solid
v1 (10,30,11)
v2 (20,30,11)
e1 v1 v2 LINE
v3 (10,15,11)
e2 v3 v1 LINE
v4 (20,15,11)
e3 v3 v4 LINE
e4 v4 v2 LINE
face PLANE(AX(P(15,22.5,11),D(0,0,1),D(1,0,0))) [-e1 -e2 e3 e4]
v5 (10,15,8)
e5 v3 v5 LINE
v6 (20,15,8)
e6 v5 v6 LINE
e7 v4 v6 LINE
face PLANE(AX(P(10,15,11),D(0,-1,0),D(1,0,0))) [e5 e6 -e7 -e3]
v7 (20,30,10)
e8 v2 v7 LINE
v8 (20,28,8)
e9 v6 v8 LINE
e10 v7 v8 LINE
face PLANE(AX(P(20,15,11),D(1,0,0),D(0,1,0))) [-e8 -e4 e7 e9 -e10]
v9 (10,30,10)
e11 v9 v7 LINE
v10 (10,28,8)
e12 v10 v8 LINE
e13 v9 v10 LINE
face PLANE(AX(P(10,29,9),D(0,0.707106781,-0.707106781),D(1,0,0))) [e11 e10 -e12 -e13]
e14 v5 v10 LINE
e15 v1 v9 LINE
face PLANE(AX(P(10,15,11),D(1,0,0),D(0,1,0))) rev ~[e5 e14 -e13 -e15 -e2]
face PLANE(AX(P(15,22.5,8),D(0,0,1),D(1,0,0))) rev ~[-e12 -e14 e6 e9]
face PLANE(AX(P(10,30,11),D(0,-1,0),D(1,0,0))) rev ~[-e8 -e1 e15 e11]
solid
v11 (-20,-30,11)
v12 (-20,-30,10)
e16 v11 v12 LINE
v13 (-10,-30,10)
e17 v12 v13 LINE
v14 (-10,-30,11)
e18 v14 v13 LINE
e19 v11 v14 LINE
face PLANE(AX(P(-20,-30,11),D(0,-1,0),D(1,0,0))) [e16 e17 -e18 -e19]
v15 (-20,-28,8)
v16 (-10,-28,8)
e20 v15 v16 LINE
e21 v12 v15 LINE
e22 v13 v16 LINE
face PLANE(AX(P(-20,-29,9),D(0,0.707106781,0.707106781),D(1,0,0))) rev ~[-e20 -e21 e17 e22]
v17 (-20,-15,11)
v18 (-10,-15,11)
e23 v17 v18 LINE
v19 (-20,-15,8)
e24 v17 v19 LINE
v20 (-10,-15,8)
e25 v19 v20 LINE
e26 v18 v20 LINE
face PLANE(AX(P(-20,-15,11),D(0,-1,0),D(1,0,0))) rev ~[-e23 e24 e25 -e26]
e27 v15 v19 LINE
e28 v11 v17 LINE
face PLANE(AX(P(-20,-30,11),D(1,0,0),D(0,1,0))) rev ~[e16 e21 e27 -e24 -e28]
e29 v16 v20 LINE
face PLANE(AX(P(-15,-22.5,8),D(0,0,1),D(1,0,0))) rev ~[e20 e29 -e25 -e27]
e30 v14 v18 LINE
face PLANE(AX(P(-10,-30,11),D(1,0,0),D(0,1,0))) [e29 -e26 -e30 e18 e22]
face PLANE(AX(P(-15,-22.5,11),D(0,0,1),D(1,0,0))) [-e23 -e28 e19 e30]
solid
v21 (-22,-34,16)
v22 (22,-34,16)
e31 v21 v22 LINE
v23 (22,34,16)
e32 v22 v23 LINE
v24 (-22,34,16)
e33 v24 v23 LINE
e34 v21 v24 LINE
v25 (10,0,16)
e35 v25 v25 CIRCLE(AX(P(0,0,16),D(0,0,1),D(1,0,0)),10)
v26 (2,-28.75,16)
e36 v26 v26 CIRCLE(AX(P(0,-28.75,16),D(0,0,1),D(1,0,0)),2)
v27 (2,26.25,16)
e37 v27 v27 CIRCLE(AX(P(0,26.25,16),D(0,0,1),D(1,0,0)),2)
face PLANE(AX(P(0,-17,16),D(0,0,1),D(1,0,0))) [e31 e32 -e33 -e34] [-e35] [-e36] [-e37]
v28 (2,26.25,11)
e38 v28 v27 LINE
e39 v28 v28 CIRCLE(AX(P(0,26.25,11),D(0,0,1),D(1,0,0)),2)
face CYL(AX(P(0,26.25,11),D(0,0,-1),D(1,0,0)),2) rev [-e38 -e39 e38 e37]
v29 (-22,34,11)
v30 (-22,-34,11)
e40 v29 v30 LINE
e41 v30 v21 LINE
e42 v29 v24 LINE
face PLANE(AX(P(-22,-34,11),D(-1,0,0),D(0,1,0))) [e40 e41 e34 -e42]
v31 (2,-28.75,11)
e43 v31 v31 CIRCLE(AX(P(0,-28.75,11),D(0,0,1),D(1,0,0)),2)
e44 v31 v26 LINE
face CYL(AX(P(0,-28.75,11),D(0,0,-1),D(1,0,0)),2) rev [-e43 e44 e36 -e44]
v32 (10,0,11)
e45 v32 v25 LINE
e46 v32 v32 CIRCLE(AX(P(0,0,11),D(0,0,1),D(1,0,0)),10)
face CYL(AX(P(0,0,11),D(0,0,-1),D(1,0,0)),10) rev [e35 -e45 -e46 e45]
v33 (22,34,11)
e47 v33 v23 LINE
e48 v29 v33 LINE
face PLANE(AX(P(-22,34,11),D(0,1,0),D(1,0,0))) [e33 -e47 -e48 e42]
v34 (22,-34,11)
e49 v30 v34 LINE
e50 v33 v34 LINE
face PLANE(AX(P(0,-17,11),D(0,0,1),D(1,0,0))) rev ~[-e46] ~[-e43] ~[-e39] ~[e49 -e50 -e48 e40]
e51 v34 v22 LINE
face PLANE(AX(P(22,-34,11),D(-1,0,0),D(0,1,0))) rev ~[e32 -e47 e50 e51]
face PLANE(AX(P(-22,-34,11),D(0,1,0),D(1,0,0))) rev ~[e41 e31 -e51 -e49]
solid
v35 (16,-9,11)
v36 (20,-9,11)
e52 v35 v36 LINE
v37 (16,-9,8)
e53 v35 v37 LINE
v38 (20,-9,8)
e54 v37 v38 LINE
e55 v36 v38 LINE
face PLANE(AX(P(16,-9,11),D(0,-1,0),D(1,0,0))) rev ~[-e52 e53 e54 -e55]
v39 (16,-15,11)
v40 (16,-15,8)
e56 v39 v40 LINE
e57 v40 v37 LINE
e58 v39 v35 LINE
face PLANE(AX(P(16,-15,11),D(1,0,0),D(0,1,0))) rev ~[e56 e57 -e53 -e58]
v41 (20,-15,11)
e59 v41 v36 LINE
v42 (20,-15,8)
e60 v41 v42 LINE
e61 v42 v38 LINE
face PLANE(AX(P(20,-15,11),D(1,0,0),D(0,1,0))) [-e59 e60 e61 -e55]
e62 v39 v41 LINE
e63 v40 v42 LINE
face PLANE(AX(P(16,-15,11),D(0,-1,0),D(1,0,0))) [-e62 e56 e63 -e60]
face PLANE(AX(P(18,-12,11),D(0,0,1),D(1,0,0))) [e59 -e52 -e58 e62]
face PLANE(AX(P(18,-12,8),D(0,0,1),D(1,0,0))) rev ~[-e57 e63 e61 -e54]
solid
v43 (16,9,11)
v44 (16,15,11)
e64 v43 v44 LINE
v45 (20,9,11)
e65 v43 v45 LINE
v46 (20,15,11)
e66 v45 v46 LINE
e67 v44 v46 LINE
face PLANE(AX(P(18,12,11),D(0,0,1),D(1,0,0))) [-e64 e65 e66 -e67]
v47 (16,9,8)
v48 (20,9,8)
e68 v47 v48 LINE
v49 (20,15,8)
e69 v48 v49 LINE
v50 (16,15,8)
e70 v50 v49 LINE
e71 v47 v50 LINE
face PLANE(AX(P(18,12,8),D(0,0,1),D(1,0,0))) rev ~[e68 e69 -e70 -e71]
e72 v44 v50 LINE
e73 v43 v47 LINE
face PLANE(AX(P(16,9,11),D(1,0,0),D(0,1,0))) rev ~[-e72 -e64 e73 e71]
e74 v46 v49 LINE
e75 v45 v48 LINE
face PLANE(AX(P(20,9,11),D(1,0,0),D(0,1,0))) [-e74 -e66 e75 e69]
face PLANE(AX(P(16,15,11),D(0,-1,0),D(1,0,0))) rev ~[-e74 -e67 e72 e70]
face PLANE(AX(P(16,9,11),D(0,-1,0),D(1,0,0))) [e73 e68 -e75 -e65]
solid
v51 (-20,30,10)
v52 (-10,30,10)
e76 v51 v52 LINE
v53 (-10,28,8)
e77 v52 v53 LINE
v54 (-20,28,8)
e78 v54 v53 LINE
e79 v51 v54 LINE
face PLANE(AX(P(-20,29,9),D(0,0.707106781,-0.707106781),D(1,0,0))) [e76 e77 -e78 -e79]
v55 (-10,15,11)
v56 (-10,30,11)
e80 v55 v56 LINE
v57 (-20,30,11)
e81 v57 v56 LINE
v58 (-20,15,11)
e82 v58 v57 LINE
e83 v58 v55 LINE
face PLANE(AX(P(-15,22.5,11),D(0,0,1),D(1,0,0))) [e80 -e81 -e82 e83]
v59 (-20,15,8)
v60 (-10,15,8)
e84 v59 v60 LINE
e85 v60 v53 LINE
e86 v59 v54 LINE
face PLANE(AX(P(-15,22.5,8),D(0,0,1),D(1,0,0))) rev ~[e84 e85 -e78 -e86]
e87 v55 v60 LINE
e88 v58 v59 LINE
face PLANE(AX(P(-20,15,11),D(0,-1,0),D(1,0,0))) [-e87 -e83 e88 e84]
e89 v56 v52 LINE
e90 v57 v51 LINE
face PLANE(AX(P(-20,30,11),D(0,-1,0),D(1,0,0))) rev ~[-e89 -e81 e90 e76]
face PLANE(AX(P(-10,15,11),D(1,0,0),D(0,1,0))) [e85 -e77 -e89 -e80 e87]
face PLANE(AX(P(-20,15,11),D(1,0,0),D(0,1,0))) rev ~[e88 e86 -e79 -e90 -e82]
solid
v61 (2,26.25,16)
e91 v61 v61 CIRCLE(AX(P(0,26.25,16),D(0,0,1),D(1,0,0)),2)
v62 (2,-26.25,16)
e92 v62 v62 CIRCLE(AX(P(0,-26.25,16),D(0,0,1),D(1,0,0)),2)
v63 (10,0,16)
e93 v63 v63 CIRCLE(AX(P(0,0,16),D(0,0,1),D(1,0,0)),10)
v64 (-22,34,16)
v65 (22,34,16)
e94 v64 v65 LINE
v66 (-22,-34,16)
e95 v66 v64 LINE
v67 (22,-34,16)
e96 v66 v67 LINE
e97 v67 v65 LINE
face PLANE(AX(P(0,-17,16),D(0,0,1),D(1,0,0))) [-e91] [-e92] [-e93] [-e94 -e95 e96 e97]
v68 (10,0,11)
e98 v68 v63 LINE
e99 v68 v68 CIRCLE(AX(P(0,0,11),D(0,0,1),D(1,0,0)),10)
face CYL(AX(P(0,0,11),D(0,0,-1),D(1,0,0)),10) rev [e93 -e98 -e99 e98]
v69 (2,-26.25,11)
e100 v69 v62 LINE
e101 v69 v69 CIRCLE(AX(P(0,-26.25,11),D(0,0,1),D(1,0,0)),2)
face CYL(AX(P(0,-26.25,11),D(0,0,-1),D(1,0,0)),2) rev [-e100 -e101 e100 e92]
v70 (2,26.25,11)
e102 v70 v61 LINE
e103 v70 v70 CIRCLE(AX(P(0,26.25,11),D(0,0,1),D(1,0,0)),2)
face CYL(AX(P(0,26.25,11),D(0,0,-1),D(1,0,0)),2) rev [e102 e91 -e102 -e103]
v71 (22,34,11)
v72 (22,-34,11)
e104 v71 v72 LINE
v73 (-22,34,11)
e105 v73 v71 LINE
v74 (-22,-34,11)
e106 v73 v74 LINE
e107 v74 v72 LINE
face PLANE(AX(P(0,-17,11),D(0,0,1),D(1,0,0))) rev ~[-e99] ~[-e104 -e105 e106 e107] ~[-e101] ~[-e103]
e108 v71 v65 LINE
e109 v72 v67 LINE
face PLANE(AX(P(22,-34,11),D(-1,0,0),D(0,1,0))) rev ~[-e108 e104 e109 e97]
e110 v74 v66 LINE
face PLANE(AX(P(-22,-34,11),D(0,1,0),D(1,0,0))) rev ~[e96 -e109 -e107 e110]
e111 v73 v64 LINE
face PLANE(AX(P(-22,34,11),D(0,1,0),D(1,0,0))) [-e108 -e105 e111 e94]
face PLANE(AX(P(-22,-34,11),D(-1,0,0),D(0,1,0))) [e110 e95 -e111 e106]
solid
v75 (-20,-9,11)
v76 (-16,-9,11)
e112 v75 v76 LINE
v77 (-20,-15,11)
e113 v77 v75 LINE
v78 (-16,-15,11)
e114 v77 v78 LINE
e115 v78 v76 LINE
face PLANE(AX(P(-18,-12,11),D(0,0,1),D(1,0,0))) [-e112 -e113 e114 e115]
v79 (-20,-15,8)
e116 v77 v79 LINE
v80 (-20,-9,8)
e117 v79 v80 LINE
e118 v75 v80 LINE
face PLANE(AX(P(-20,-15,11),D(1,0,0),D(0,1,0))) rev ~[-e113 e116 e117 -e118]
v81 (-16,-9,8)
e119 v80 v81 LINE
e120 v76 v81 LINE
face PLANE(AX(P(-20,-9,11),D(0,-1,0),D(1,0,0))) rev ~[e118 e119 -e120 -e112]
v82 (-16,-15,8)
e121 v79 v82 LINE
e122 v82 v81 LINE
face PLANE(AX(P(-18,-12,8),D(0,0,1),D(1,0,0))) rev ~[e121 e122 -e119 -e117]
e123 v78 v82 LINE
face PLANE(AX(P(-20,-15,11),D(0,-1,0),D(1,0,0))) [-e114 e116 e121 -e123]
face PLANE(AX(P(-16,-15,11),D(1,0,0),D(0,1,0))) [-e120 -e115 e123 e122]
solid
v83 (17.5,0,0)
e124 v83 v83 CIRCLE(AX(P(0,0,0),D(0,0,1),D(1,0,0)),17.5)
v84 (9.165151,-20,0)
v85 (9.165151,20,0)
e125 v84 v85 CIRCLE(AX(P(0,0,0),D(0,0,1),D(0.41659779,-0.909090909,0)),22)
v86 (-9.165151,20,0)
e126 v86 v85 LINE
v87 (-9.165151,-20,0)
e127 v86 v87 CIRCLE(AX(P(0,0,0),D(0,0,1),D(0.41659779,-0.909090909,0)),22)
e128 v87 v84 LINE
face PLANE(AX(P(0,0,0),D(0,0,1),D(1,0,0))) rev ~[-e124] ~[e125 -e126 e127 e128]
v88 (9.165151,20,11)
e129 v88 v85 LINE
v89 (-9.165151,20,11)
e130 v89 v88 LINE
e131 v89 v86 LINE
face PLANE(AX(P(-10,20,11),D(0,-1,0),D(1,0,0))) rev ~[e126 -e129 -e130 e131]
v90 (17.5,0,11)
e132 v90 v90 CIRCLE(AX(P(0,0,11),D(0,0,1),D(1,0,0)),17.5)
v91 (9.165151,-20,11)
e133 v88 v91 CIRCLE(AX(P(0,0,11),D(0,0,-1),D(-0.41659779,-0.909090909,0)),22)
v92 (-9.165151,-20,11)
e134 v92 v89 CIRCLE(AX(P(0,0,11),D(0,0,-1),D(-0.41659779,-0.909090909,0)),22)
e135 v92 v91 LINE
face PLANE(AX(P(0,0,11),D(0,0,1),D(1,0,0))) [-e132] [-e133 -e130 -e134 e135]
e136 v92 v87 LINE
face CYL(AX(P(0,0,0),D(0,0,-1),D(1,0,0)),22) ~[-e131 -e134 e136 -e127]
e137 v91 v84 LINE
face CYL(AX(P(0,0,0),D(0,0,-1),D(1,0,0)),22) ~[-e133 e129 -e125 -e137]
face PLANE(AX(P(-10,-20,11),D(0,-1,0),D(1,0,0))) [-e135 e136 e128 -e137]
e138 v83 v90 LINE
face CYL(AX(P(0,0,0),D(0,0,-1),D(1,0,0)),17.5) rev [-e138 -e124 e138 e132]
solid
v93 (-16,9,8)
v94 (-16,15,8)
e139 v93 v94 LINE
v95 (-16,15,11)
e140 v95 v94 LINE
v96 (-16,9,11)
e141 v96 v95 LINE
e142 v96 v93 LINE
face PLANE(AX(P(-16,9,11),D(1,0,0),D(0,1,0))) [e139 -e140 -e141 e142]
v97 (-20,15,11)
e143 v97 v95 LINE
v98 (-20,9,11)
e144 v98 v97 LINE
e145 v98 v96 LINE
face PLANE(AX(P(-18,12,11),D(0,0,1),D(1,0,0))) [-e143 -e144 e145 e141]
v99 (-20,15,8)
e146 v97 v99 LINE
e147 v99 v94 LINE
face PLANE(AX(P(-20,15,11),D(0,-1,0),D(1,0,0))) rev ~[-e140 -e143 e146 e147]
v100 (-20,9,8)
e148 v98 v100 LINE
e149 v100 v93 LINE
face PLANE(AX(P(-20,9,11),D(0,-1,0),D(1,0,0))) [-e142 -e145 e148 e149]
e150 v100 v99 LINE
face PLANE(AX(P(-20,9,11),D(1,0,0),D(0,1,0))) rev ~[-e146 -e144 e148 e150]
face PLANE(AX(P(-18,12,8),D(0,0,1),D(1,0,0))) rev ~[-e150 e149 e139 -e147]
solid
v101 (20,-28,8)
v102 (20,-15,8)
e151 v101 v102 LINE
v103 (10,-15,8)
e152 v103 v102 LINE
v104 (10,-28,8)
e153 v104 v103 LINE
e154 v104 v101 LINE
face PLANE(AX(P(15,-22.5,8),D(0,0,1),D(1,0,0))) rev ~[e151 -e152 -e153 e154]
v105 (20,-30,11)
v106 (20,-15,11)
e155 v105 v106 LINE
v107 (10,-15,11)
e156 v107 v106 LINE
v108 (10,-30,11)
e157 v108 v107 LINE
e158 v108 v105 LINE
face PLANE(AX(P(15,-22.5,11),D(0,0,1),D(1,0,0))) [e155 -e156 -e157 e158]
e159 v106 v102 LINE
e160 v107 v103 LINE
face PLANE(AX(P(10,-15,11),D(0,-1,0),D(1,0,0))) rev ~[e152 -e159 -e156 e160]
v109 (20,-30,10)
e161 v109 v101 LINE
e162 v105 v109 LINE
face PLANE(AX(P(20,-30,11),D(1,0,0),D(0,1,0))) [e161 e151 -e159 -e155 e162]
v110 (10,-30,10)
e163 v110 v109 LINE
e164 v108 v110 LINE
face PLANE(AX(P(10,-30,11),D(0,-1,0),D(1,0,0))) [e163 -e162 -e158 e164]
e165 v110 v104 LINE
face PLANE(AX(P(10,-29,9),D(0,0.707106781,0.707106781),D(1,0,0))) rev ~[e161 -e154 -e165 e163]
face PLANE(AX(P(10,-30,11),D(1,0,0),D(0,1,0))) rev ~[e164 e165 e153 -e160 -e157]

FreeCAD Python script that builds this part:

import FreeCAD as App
import Part
import Sketcher
from FreeCAD import Vector


def edges_at(feature, points):
    """Names of the edges that pass closest to the given points."""
    edges = feature.Shape.Edges
    near = lambda p: min(range(len(edges)), key=lambda i: edges[i].distToShape(Part.Vertex(*p))[0])
    return sorted({f"Edge{near(p) + 1}" for p in points})

doc = App.newDocument("Part")
params = doc.addObject("Spreadsheet::Sheet", "Params")
for row, (alias, value) in enumerate([
    ("sketch1_width", "20 mm"),
    ("sketch1_height", "6.25 mm"),
    ("pad1_length", "11 mm"),
    ("sketch2_width", "20 mm"),
    ("sketch2_height", "6.25 mm"),
    ("pad2_length", "11 mm"),
    ("sketch3_diameter", "35 mm"),
    ("pad3_length", "11 mm"),
    ("sketch4_diameter", "44 mm"),
    ("pad4_length", "11 mm"),
    ("sketch5_width", "4 mm"),
    ("sketch5_height", "6 mm"),
    ("pad5_length", "3 mm"),
    ("sketch6_width", "4 mm"),
    ("sketch6_height", "6 mm"),
    ("pad6_length", "3 mm"),
    ("sketch7_width", "4 mm"),
    ("sketch7_height", "6 mm"),
    ("pad7_length", "3 mm"),
    ("sketch8_width", "4 mm"),
    ("sketch8_height", "6 mm"),
    ("pad8_length", "3 mm"),
    ("sketch9_width", "10 mm"),
    ("sketch9_height", "15 mm"),
    ("pad9_length", "3 mm"),
    ("chamfer_size", "2 mm"),
    ("sketch10_width", "10 mm"),
    ("sketch10_height", "15 mm"),
    ("pad10_length", "3 mm"),
    ("chamfer2_size", "2 mm"),
    ("sketch11_width", "10 mm"),
    ("sketch11_height", "15 mm"),
    ("pad11_length", "3 mm"),
    ("chamfer3_size", "2 mm"),
    ("sketch12_width", "10 mm"),
    ("sketch12_height", "15 mm"),
    ("pad12_length", "3 mm"),
    ("chamfer4_size", "2 mm"),
    ("sketch13_diameter", "4 mm"),
    ("pad13_length", "5 mm"),
    ("sketch14_diameter", "4 mm"),
    ("pad14_length", "5 mm"),
    ("sketch15_diameter", "20 mm"),
    ("pad15_length", "5 mm"),
    ("sketch16_width", "44 mm"),
    ("sketch16_height", "34 mm"),
    ("pad16_length", "5 mm"),
    ("sketch17_width", "44 mm"),
    ("sketch17_height", "34 mm"),
    ("pad17_length", "5 mm"),
    ("sketch18_diameter", "4 mm"),
    ("pad18_length", "5 mm"),
    ("sketch19_diameter", "4 mm"),
    ("pad19_length", "5 mm"),
    ("sketch20_diameter", "20 mm"),
    ("pad20_length", "5 mm"),
    ("sketch21_width", "44 mm"),
    ("sketch21_height", "34 mm"),
    ("pad21_length", "5 mm"),
    ("sketch22_width", "44 mm"),
    ("sketch22_height", "34 mm"),
    ("pad22_length", "5 mm"),
], start=1):
    params.set(f"A{row}", alias)
    params.set(f"B{row}", "=" + value)
    params.setAlias(f"B{row}", alias)

body = doc.addObject("PartDesign::Body", "Body")

# Sketch on XY plane
sketch1 = body.newObject("Sketcher::SketchObject", "Sketch")
sketch1.AttachmentSupport = (doc.getObject("XY_Plane"), [""])
sketch1.MapMode = "FlatFace"
sketch1.AttachmentOffset = App.Placement(Vector(0, 0, 11), App.Rotation())
sketch1.addGeometry([
    Part.LineSegment(Vector(-10, 26, 0), Vector(-10, 20, 0)),
    Part.LineSegment(Vector(-10, 20, 0), Vector(10, 20, 0)),
    Part.LineSegment(Vector(10, 20, 0), Vector(10, 26, 0)),
    Part.LineSegment(Vector(10, 26, 0), Vector(-10, 26, 0)),
], False)
sketch1.addConstraint([
    Sketcher.Constraint("Coincident", 0, 2, 1, 1),
    Sketcher.Constraint("Coincident", 1, 2, 2, 1),
    Sketcher.Constraint("Coincident", 2, 2, 3, 1),
    Sketcher.Constraint("Coincident", 3, 2, 0, 1),
    Sketcher.Constraint("Vertical", 0),
    Sketcher.Constraint("Horizontal", 1),
    Sketcher.Constraint("Vertical", 2),
    Sketcher.Constraint("Horizontal", 3),
    Sketcher.Constraint("DistanceX", 1, 1, 1, 2, 20.0),
    Sketcher.Constraint("DistanceX", 0, 2, -1, 1, 10.0),
    Sketcher.Constraint("DistanceY", -1, 1, 0, 2, 20.0),
    Sketcher.Constraint("DistanceY", 0, 2, 0, 1, 6.25),
])
sketch1.setExpression("Constraints[8]", "Params.sketch1_width")
sketch1.setExpression("Constraints[11]", "Params.sketch1_height")
pad1 = body.newObject("PartDesign::Pad", "Pad")
pad1.Profile = sketch1
pad1.setExpression("Length", "Params.pad1_length")
pad1.Reversed = True
body2 = doc.addObject("PartDesign::Body", "Body001")

# Sketch on XY plane
sketch2 = body2.newObject("Sketcher::SketchObject", "Sketch001")
sketch2.AttachmentSupport = (doc.getObject("XY_Plane001"), [""])
sketch2.MapMode = "FlatFace"
sketch2.AttachmentOffset = App.Placement(Vector(0, 0, 11), App.Rotation())
sketch2.addGeometry([
    Part.LineSegment(Vector(-10, -20, 0), Vector(-10, -26, 0)),
    Part.LineSegment(Vector(-10, -26, 0), Vector(10, -26, 0)),
    Part.LineSegment(Vector(10, -26, 0), Vector(10, -20, 0)),
    Part.LineSegment(Vector(10, -20, 0), Vector(-10, -20, 0)),
], False)
sketch2.addConstraint([
    Sketcher.Constraint("Coincident", 0, 2, 1, 1),
    Sketcher.Constraint("Coincident", 1, 2, 2, 1),
    Sketcher.Constraint("Coincident", 2, 2, 3, 1),
    Sketcher.Constraint("Coincident", 3, 2, 0, 1),
    Sketcher.Constraint("Vertical", 0),
    Sketcher.Constraint("Horizontal", 1),
    Sketcher.Constraint("Vertical", 2),
    Sketcher.Constraint("Horizontal", 3),
    Sketcher.Constraint("DistanceX", 1, 1, 1, 2, 20.0),
    Sketcher.Constraint("DistanceX", 0, 2, -1, 1, 10.0),
    Sketcher.Constraint("DistanceY", 2, 2, -1, 1, 20.0),
    Sketcher.Constraint("DistanceY", 0, 2, 0, 1, 6.25),
])
sketch2.setExpression("Constraints[8]", "Params.sketch2_width")
sketch2.setExpression("Constraints[11]", "Params.sketch2_height")
pad2 = body2.newObject("PartDesign::Pad", "Pad001")
pad2.Profile = sketch2
pad2.setExpression("Length", "Params.pad2_length")
pad2.Reversed = True
body3 = doc.addObject("PartDesign::Body", "Body002")

# Sketch on XY plane
sketch3 = body3.newObject("Sketcher::SketchObject", "Sketch002")
sketch3.AttachmentSupport = (doc.getObject("XY_Plane002"), [""])
sketch3.MapMode = "FlatFace"
sketch3.addGeometry(Part.Circle(Vector(0, 0, 0), Vector(0, 0, 1), 18), False)
sketch3.addConstraint([
    Sketcher.Constraint("Coincident", 0, 3, -1, 1),
    Sketcher.Constraint("Diameter", 0, 35.0),
])
sketch3.setExpression("Constraints[1]", "Params.sketch3_diameter")
pad3 = body3.newObject("PartDesign::Pad", "Pad002")
pad3.Profile = sketch3
pad3.setExpression("Length", "Params.pad3_length")
body4 = doc.addObject("PartDesign::Body", "Body003")

# Sketch on XY plane
sketch4 = body4.newObject("Sketcher::SketchObject", "Sketch003")
sketch4.AttachmentSupport = (doc.getObject("XY_Plane003"), [""])
sketch4.MapMode = "FlatFace"
sketch4.addGeometry(Part.Circle(Vector(0, 0, 0), Vector(0, 0, 1), 22), False)
sketch4.addConstraint([
    Sketcher.Constraint("Coincident", 0, 3, -1, 1),
    Sketcher.Constraint("Diameter", 0, 44.0),
])
sketch4.setExpression("Constraints[1]", "Params.sketch4_diameter")
pad4 = body4.newObject("PartDesign::Pad", "Pad003")
pad4.Profile = sketch4
pad4.setExpression("Length", "Params.pad4_length")
doc.recompute()

boolean = body4.newObject("PartDesign::Boolean", "Boolean")
boolean.Type = "Cut"
boolean.addObjects([body3])
doc.recompute()

boolean2 = body4.newObject("PartDesign::Boolean", "Boolean001")
boolean2.Type = "Cut"
boolean2.addObjects([body2])
doc.recompute()

boolean3 = body4.newObject("PartDesign::Boolean", "Boolean002")
boolean3.Type = "Cut"
boolean3.addObjects([body])
body5 = doc.addObject("PartDesign::Body", "Body004")

# Sketch on XY plane
sketch5 = body5.newObject("Sketcher::SketchObject", "Sketch004")
sketch5.AttachmentSupport = (doc.getObject("XY_Plane004"), [""])
sketch5.MapMode = "FlatFace"
sketch5.AttachmentOffset = App.Placement(Vector(0, 0, 11), App.Rotation())
sketch5.addGeometry([
    Part.LineSegment(Vector(16, -9, 0), Vector(16, -15, 0)),
    Part.LineSegment(Vector(16, -15, 0), Vector(20, -15, 0)),
    Part.LineSegment(Vector(20, -15, 0), Vector(20, -9, 0)),
    Part.LineSegment(Vector(20, -9, 0), Vector(16, -9, 0)),
], False)
sketch5.addConstraint([
    Sketcher.Constraint("Coincident", 0, 2, 1, 1),
    Sketcher.Constraint("Coincident", 1, 2, 2, 1),
    Sketcher.Constraint("Coincident", 2, 2, 3, 1),
    Sketcher.Constraint("Coincident", 3, 2, 0, 1),
    Sketcher.Constraint("Vertical", 0),
    Sketcher.Constraint("Horizontal", 1),
    Sketcher.Constraint("Vertical", 2),
    Sketcher.Constraint("Horizontal", 3),
    Sketcher.Constraint("DistanceX", 1, 1, 1, 2, 4.0),
    Sketcher.Constraint("DistanceY", 0, 2, 0, 1, 6.0),
    Sketcher.Constraint("DistanceX", -1, 1, 0, 2, 16.0),
    Sketcher.Constraint("DistanceY", 0, 2, -1, 1, 15.0),
])
sketch5.setExpression("Constraints[8]", "Params.sketch5_width")
sketch5.setExpression("Constraints[9]", "Params.sketch5_height")
pad5 = body5.newObject("PartDesign::Pad", "Pad004")
pad5.Profile = sketch5
pad5.setExpression("Length", "Params.pad5_length")
pad5.Reversed = True
body6 = doc.addObject("PartDesign::Body", "Body005")

# Sketch on XY plane
sketch6 = body6.newObject("Sketcher::SketchObject", "Sketch005")
sketch6.AttachmentSupport = (doc.getObject("XY_Plane005"), [""])
sketch6.MapMode = "FlatFace"
sketch6.AttachmentOffset = App.Placement(Vector(0, 0, 11), App.Rotation())
sketch6.addGeometry([
    Part.LineSegment(Vector(16, 15, 0), Vector(16, 9, 0)),
    Part.LineSegment(Vector(16, 9, 0), Vector(20, 9, 0)),
    Part.LineSegment(Vector(20, 9, 0), Vector(20, 15, 0)),
    Part.LineSegment(Vector(20, 15, 0), Vector(16, 15, 0)),
], False)
sketch6.addConstraint([
    Sketcher.Constraint("Coincident", 0, 2, 1, 1),
    Sketcher.Constraint("Coincident", 1, 2, 2, 1),
    Sketcher.Constraint("Coincident", 2, 2, 3, 1),
    Sketcher.Constraint("Coincident", 3, 2, 0, 1),
    Sketcher.Constraint("Vertical", 0),
    Sketcher.Constraint("Horizontal", 1),
    Sketcher.Constraint("Vertical", 2),
    Sketcher.Constraint("Horizontal", 3),
    Sketcher.Constraint("DistanceX", 1, 1, 1, 2, 4.0),
    Sketcher.Constraint("DistanceY", 0, 2, 0, 1, 6.0),
    Sketcher.Constraint("DistanceX", -1, 1, 0, 2, 16.0),
    Sketcher.Constraint("DistanceY", -1, 1, 0, 2, 9.0),
])
sketch6.setExpression("Constraints[8]", "Params.sketch6_width")
sketch6.setExpression("Constraints[9]", "Params.sketch6_height")
pad6 = body6.newObject("PartDesign::Pad", "Pad005")
pad6.Profile = sketch6
pad6.setExpression("Length", "Params.pad6_length")
pad6.Reversed = True
body7 = doc.addObject("PartDesign::Body", "Body006")

# Sketch on XY plane
sketch7 = body7.newObject("Sketcher::SketchObject", "Sketch006")
sketch7.AttachmentSupport = (doc.getObject("XY_Plane006"), [""])
sketch7.MapMode = "FlatFace"
sketch7.AttachmentOffset = App.Placement(Vector(0, 0, 11), App.Rotation())
sketch7.addGeometry([
    Part.LineSegment(Vector(-20, 15, 0), Vector(-20, 9, 0)),
    Part.LineSegment(Vector(-20, 9, 0), Vector(-16, 9, 0)),
    Part.LineSegment(Vector(-16, 9, 0), Vector(-16, 15, 0)),
    Part.LineSegment(Vector(-16, 15, 0), Vector(-20, 15, 0)),
], False)
sketch7.addConstraint([
    Sketcher.Constraint("Coincident", 0, 2, 1, 1),
    Sketcher.Constraint("Coincident", 1, 2, 2, 1),
    Sketcher.Constraint("Coincident", 2, 2, 3, 1),
    Sketcher.Constraint("Coincident", 3, 2, 0, 1),
    Sketcher.Constraint("Vertical", 0),
    Sketcher.Constraint("Horizontal", 1),
    Sketcher.Constraint("Vertical", 2),
    Sketcher.Constraint("Horizontal", 3),
    Sketcher.Constraint("DistanceX", 1, 1, 1, 2, 4.0),
    Sketcher.Constraint("DistanceY", 0, 2, 0, 1, 6.0),
    Sketcher.Constraint("DistanceX", 0, 2, -1, 1, 20.0),
    Sketcher.Constraint("DistanceY", -1, 1, 0, 2, 9.0),
])
sketch7.setExpression("Constraints[8]", "Params.sketch7_width")
sketch7.setExpression("Constraints[9]", "Params.sketch7_height")
pad7 = body7.newObject("PartDesign::Pad", "Pad006")
pad7.Profile = sketch7
pad7.setExpression("Length", "Params.pad7_length")
pad7.Reversed = True
body8 = doc.addObject("PartDesign::Body", "Body007")

# Sketch on XY plane
sketch8 = body8.newObject("Sketcher::SketchObject", "Sketch007")
sketch8.AttachmentSupport = (doc.getObject("XY_Plane007"), [""])
sketch8.MapMode = "FlatFace"
sketch8.AttachmentOffset = App.Placement(Vector(0, 0, 11), App.Rotation())
sketch8.addGeometry([
    Part.LineSegment(Vector(-20, -9, 0), Vector(-20, -15, 0)),
    Part.LineSegment(Vector(-20, -15, 0), Vector(-16, -15, 0)),
    Part.LineSegment(Vector(-16, -15, 0), Vector(-16, -9, 0)),
    Part.LineSegment(Vector(-16, -9, 0), Vector(-20, -9, 0)),
], False)
sketch8.addConstraint([
    Sketcher.Constraint("Coincident", 0, 2, 1, 1),
    Sketcher.Constraint("Coincident", 1, 2, 2, 1),
    Sketcher.Constraint("Coincident", 2, 2, 3, 1),
    Sketcher.Constraint("Coincident", 3, 2, 0, 1),
    Sketcher.Constraint("Vertical", 0),
    Sketcher.Constraint("Horizontal", 1),
    Sketcher.Constraint("Vertical", 2),
    Sketcher.Constraint("Horizontal", 3),
    Sketcher.Constraint("DistanceX", 1, 1, 1, 2, 4.0),
    Sketcher.Constraint("DistanceY", 0, 2, 0, 1, 6.0),
    Sketcher.Constraint("DistanceX", 0, 2, -1, 1, 20.0),
    Sketcher.Constraint("DistanceY", 0, 2, -1, 1, 15.0),
])
sketch8.setExpression("Constraints[8]", "Params.sketch8_width")
sketch8.setExpression("Constraints[9]", "Params.sketch8_height")
pad8 = body8.newObject("PartDesign::Pad", "Pad007")
pad8.Profile = sketch8
pad8.setExpression("Length", "Params.pad8_length")
pad8.Reversed = True
body9 = doc.addObject("PartDesign::Body", "Body008")

# Sketch on XY plane
sketch9 = body9.newObject("Sketcher::SketchObject", "Sketch008")
sketch9.AttachmentSupport = (doc.getObject("XY_Plane008"), [""])
sketch9.MapMode = "FlatFace"
sketch9.AttachmentOffset = App.Placement(Vector(0, 0, 11), App.Rotation())
sketch9.addGeometry([
    Part.LineSegment(Vector(10, 30, 0), Vector(10, 15, 0)),
    Part.LineSegment(Vector(10, 15, 0), Vector(20, 15, 0)),
    Part.LineSegment(Vector(20, 15, 0), Vector(20, 30, 0)),
    Part.LineSegment(Vector(20, 30, 0), Vector(10, 30, 0)),
], False)
sketch9.addConstraint([
    Sketcher.Constraint("Coincident", 0, 2, 1, 1),
    Sketcher.Constraint("Coincident", 1, 2, 2, 1),
    Sketcher.Constraint("Coincident", 2, 2, 3, 1),
    Sketcher.Constraint("Coincident", 3, 2, 0, 1),
    Sketcher.Constraint("Vertical", 0),
    Sketcher.Constraint("Horizontal", 1),
    Sketcher.Constraint("Vertical", 2),
    Sketcher.Constraint("Horizontal", 3),
    Sketcher.Constraint("DistanceX", 1, 1, 1, 2, 10.0),
    Sketcher.Constraint("DistanceY", 0, 2, 0, 1, 15.0),
    Sketcher.Constraint("DistanceX", -1, 1, 0, 2, 10.0),
    Sketcher.Constraint("DistanceY", -1, 1, 0, 2, 15.0),
])
sketch9.setExpression("Constraints[8]", "Params.sketch9_width")
sketch9.setExpression("Constraints[9]", "Params.sketch9_height")
pad9 = body9.newObject("PartDesign::Pad", "Pad008")
pad9.Profile = sketch9
pad9.setExpression("Length", "Params.pad9_length")
pad9.Reversed = True
doc.recompute()

chamfer = body9.newObject("PartDesign::Chamfer", "Chamfer")
chamfer.Base = (pad9, edges_at(pad9, [(15, 30, 8)]))
chamfer.setExpression("Size", "Params.chamfer_size")
body10 = doc.addObject("PartDesign::Body", "Body009")

# Sketch on XY plane
sketch10 = body10.newObject("Sketcher::SketchObject", "Sketch009")
sketch10.AttachmentSupport = (doc.getObject("XY_Plane009"), [""])
sketch10.MapMode = "FlatFace"
sketch10.AttachmentOffset = App.Placement(Vector(0, 0, 11), App.Rotation())
sketch10.addGeometry([
    Part.LineSegment(Vector(-20, 30, 0), Vector(-20, 15, 0)),
    Part.LineSegment(Vector(-20, 15, 0), Vector(-10, 15, 0)),
    Part.LineSegment(Vector(-10, 15, 0), Vector(-10, 30, 0)),
    Part.LineSegment(Vector(-10, 30, 0), Vector(-20, 30, 0)),
], False)
sketch10.addConstraint([
    Sketcher.Constraint("Coincident", 0, 2, 1, 1),
    Sketcher.Constraint("Coincident", 1, 2, 2, 1),
    Sketcher.Constraint("Coincident", 2, 2, 3, 1),
    Sketcher.Constraint("Coincident", 3, 2, 0, 1),
    Sketcher.Constraint("Vertical", 0),
    Sketcher.Constraint("Horizontal", 1),
    Sketcher.Constraint("Vertical", 2),
    Sketcher.Constraint("Horizontal", 3),
    Sketcher.Constraint("DistanceX", 1, 1, 1, 2, 10.0),
    Sketcher.Constraint("DistanceY", 0, 2, 0, 1, 15.0),
    Sketcher.Constraint("DistanceX", 0, 2, -1, 1, 20.0),
    Sketcher.Constraint("DistanceY", -1, 1, 0, 2, 15.0),
])
sketch10.setExpression("Constraints[8]", "Params.sketch10_width")
sketch10.setExpression("Constraints[9]", "Params.sketch10_height")
pad10 = body10.newObject("PartDesign::Pad", "Pad009")
pad10.Profile = sketch10
pad10.setExpression("Length", "Params.pad10_length")
pad10.Reversed = True
doc.recompute()

chamfer2 = body10.newObject("PartDesign::Chamfer", "Chamfer001")
chamfer2.Base = (pad10, edges_at(pad10, [(-15, 30, 8)]))
chamfer2.setExpression("Size", "Params.chamfer2_size")
body11 = doc.addObject("PartDesign::Body", "Body010")

# Sketch on XY plane
sketch11 = body11.newObject("Sketcher::SketchObject", "Sketch010")
sketch11.AttachmentSupport = (doc.getObject("XY_Plane010"), [""])
sketch11.MapMode = "FlatFace"
sketch11.AttachmentOffset = App.Placement(Vector(0, 0, 11), App.Rotation())
sketch11.addGeometry([
    Part.LineSegment(Vector(10, -15, 0), Vector(10, -30, 0)),
    Part.LineSegment(Vector(10, -30, 0), Vector(20, -30, 0)),
    Part.LineSegment(Vector(20, -30, 0), Vector(20, -15, 0)),
    Part.LineSegment(Vector(20, -15, 0), Vector(10, -15, 0)),
], False)
sketch11.addConstraint([
    Sketcher.Constraint("Coincident", 0, 2, 1, 1),
    Sketcher.Constraint("Coincident", 1, 2, 2, 1),
    Sketcher.Constraint("Coincident", 2, 2, 3, 1),
    Sketcher.Constraint("Coincident", 3, 2, 0, 1),
    Sketcher.Constraint("Vertical", 0),
    Sketcher.Constraint("Horizontal", 1),
    Sketcher.Constraint("Vertical", 2),
    Sketcher.Constraint("Horizontal", 3),
    Sketcher.Constraint("DistanceX", 1, 1, 1, 2, 10.0),
    Sketcher.Constraint("DistanceY", 0, 2, 0, 1, 15.0),
    Sketcher.Constraint("DistanceX", -1, 1, 0, 2, 10.0),
    Sketcher.Constraint("DistanceY", 0, 2, -1, 1, 30.0),
])
sketch11.setExpression("Constraints[8]", "Params.sketch11_width")
sketch11.setExpression("Constraints[9]", "Params.sketch11_height")
pad11 = body11.newObject("PartDesign::Pad", "Pad010")
pad11.Profile = sketch11
pad11.setExpression("Length", "Params.pad11_length")
pad11.Reversed = True
doc.recompute()

chamfer3 = body11.newObject("PartDesign::Chamfer", "Chamfer002")
chamfer3.Base = (pad11, edges_at(pad11, [(15, -30, 8)]))
chamfer3.setExpression("Size", "Params.chamfer3_size")
body12 = doc.addObject("PartDesign::Body", "Body011")

# Sketch on XY plane
sketch12 = body12.newObject("Sketcher::SketchObject", "Sketch011")
sketch12.AttachmentSupport = (doc.getObject("XY_Plane011"), [""])
sketch12.MapMode = "FlatFace"
sketch12.AttachmentOffset = App.Placement(Vector(0, 0, 11), App.Rotation())
sketch12.addGeometry([
    Part.LineSegment(Vector(-20, -15, 0), Vector(-20, -30, 0)),
    Part.LineSegment(Vector(-20, -30, 0), Vector(-10, -30, 0)),
    Part.LineSegment(Vector(-10, -30, 0), Vector(-10, -15, 0)),
    Part.LineSegment(Vector(-10, -15, 0), Vector(-20, -15, 0)),
], False)
sketch12.addConstraint([
    Sketcher.Constraint("Coincident", 0, 2, 1, 1),
    Sketcher.Constraint("Coincident", 1, 2, 2, 1),
    Sketcher.Constraint("Coincident", 2, 2, 3, 1),
    Sketcher.Constraint("Coincident", 3, 2, 0, 1),
    Sketcher.Constraint("Vertical", 0),
    Sketcher.Constraint("Horizontal", 1),
    Sketcher.Constraint("Vertical", 2),
    Sketcher.Constraint("Horizontal", 3),
    Sketcher.Constraint("DistanceX", 1, 1, 1, 2, 10.0),
    Sketcher.Constraint("DistanceY", 0, 2, 0, 1, 15.0),
    Sketcher.Constraint("DistanceX", 0, 2, -1, 1, 20.0),
    Sketcher.Constraint("DistanceY", 0, 2, -1, 1, 30.0),
])
sketch12.setExpression("Constraints[8]", "Params.sketch12_width")
sketch12.setExpression("Constraints[9]", "Params.sketch12_height")
pad12 = body12.newObject("PartDesign::Pad", "Pad011")
pad12.Profile = sketch12
pad12.setExpression("Length", "Params.pad12_length")
pad12.Reversed = True
doc.recompute()

chamfer4 = body12.newObject("PartDesign::Chamfer", "Chamfer003")
chamfer4.Base = (pad12, edges_at(pad12, [(-15, -30, 8)]))
chamfer4.setExpression("Size", "Params.chamfer4_size")
body13 = doc.addObject("PartDesign::Body", "Body012")

# Sketch on XY plane
sketch13 = body13.newObject("Sketcher::SketchObject", "Sketch012")
sketch13.AttachmentSupport = (doc.getObject("XY_Plane012"), [""])
sketch13.MapMode = "FlatFace"
sketch13.AttachmentOffset = App.Placement(Vector(0, 0, 11), App.Rotation())
sketch13.addGeometry(Part.Circle(Vector(0, -26.2, 0), Vector(0, 0, 1), 2), False)
sketch13.addConstraint([
    Sketcher.Constraint("PointOnObject", 0, 3, -2),
    Sketcher.Constraint("Diameter", 0, 4.0),
    Sketcher.Constraint("DistanceY", 0, 3, -1, 1, 26.25),
])
sketch13.setExpression("Constraints[1]", "Params.sketch13_diameter")
pad13 = body13.newObject("PartDesign::Pad", "Pad012")
pad13.Profile = sketch13
pad13.setExpression("Length", "Params.pad13_length")
body14 = doc.addObject("PartDesign::Body", "Body013")

# Sketch on XY plane
sketch14 = body14.newObject("Sketcher::SketchObject", "Sketch013")
sketch14.AttachmentSupport = (doc.getObject("XY_Plane013"), [""])
sketch14.MapMode = "FlatFace"
sketch14.AttachmentOffset = App.Placement(Vector(0, 0, 11), App.Rotation())
sketch14.addGeometry(Part.Circle(Vector(0, 26.2, 0), Vector(0, 0, 1), 2), False)
sketch14.addConstraint([
    Sketcher.Constraint("PointOnObject", 0, 3, -2),
    Sketcher.Constraint("Diameter", 0, 4.0),
    Sketcher.Constraint("DistanceY", -1, 1, 0, 3, 26.25),
])
sketch14.setExpression("Constraints[1]", "Params.sketch14_diameter")
pad14 = body14.newObject("PartDesign::Pad", "Pad013")
pad14.Profile = sketch14
pad14.setExpression("Length", "Params.pad14_length")
body15 = doc.addObject("PartDesign::Body", "Body014")

# Sketch on XY plane
sketch15 = body15.newObject("Sketcher::SketchObject", "Sketch014")
sketch15.AttachmentSupport = (doc.getObject("XY_Plane014"), [""])
sketch15.MapMode = "FlatFace"
sketch15.AttachmentOffset = App.Placement(Vector(0, 0, 11), App.Rotation())
sketch15.addGeometry(Part.Circle(Vector(0, 0, 0), Vector(0, 0, 1), 10), False)
sketch15.addConstraint([
    Sketcher.Constraint("Coincident", 0, 3, -1, 1),
    Sketcher.Constraint("Diameter", 0, 20.0),
])
sketch15.setExpression("Constraints[1]", "Params.sketch15_diameter")
pad15 = body15.newObject("PartDesign::Pad", "Pad014")
pad15.Profile = sketch15
pad15.setExpression("Length", "Params.pad15_length")
body16 = doc.addObject("PartDesign::Body", "Body015")

# Sketch on XY plane
sketch16 = body16.newObject("Sketcher::SketchObject", "Sketch015")
sketch16.AttachmentSupport = (doc.getObject("XY_Plane015"), [""])
sketch16.MapMode = "FlatFace"
sketch16.AttachmentOffset = App.Placement(Vector(0, 0, 11), App.Rotation())
sketch16.addGeometry([
    Part.LineSegment(Vector(-22, 0, 0), Vector(-22, -34, 0)),
    Part.LineSegment(Vector(-22, -34, 0), Vector(22, -34, 0)),
    Part.LineSegment(Vector(22, -34, 0), Vector(22, 0, 0)),
    Part.LineSegment(Vector(22, 0, 0), Vector(-22, 0, 0)),
], False)
sketch16.addConstraint([
    Sketcher.Constraint("Coincident", 0, 2, 1, 1),
    Sketcher.Constraint("Coincident", 1, 2, 2, 1),
    Sketcher.Constraint("Coincident", 2, 2, 3, 1),
    Sketcher.Constraint("Coincident", 3, 2, 0, 1),
    Sketcher.Constraint("Vertical", 0),
    Sketcher.Constraint("Horizontal", 1),
    Sketcher.Constraint("Vertical", 2),
    Sketcher.Constraint("Horizontal", 3),
    Sketcher.Constraint("Symmetric", 2, 2, 3, 2, -1, 1),
    Sketcher.Constraint("DistanceX", 1, 1, 1, 2, 44.0),
    Sketcher.Constraint("DistanceY", 0, 2, 0, 1, 34.0),
])
sketch16.setExpression("Constraints[9]", "Params.sketch16_width")
sketch16.setExpression("Constraints[10]", "Params.sketch16_height")
pad16 = body16.newObject("PartDesign::Pad", "Pad015")
pad16.Profile = sketch16
pad16.setExpression("Length", "Params.pad16_length")
body17 = doc.addObject("PartDesign::Body", "Body016")

# Sketch on XY plane
sketch17 = body17.newObject("Sketcher::SketchObject", "Sketch016")
sketch17.AttachmentSupport = (doc.getObject("XY_Plane016"), [""])
sketch17.MapMode = "FlatFace"
sketch17.AttachmentOffset = App.Placement(Vector(0, 0, 11), App.Rotation())
sketch17.addGeometry([
    Part.LineSegment(Vector(-22, 34, 0), Vector(-22, 0, 0)),
    Part.LineSegment(Vector(-22, 0, 0), Vector(22, 0, 0)),
    Part.LineSegment(Vector(22, 0, 0), Vector(22, 34, 0)),
    Part.LineSegment(Vector(22, 34, 0), Vector(-22, 34, 0)),
], False)
sketch17.addConstraint([
    Sketcher.Constraint("Coincident", 0, 2, 1, 1),
    Sketcher.Constraint("Coincident", 1, 2, 2, 1),
    Sketcher.Constraint("Coincident", 2, 2, 3, 1),
    Sketcher.Constraint("Coincident", 3, 2, 0, 1),
    Sketcher.Constraint("Vertical", 0),
    Sketcher.Constraint("Horizontal", 1),
    Sketcher.Constraint("Vertical", 2),
    Sketcher.Constraint("Horizontal", 3),
    Sketcher.Constraint("Symmetric", 0, 2, 1, 2, -1, 1),
    Sketcher.Constraint("DistanceX", 1, 1, 1, 2, 44.0),
    Sketcher.Constraint("DistanceY", 0, 2, 0, 1, 34.0),
])
sketch17.setExpression("Constraints[9]", "Params.sketch17_width")
sketch17.setExpression("Constraints[10]", "Params.sketch17_height")
pad17 = body17.newObject("PartDesign::Pad", "Pad016")
pad17.Profile = sketch17
pad17.setExpression("Length", "Params.pad17_length")
doc.recompute()

boolean4 = body17.newObject("PartDesign::Boolean", "Boolean003")
boolean4.Type = "Fuse"
boolean4.addObjects([body16])
doc.recompute()

boolean5 = body17.newObject("PartDesign::Boolean", "Boolean004")
boolean5.Type = "Cut"
boolean5.addObjects([body15])
doc.recompute()

boolean6 = body17.newObject("PartDesign::Boolean", "Boolean005")
boolean6.Type = "Cut"
boolean6.addObjects([body14])
doc.recompute()

boolean7 = body17.newObject("PartDesign::Boolean", "Boolean006")
boolean7.Type = "Cut"
boolean7.addObjects([body13])
body18 = doc.addObject("PartDesign::Body", "Body017")

# Sketch on XY plane
sketch18 = body18.newObject("Sketcher::SketchObject", "Sketch017")
sketch18.AttachmentSupport = (doc.getObject("XY_Plane017"), [""])
sketch18.MapMode = "FlatFace"
sketch18.AttachmentOffset = App.Placement(Vector(0, 0, 11), App.Rotation())
sketch18.addGeometry(Part.Circle(Vector(0, -26.2, 0), Vector(0, 0, 1), 2), False)
sketch18.addConstraint([
    Sketcher.Constraint("PointOnObject", 0, 3, -2),
    Sketcher.Constraint("Diameter", 0, 4.0),
    Sketcher.Constraint("DistanceY", 0, 3, -1, 1, 26.25),
])
sketch18.setExpression("Constraints[1]", "Params.sketch18_diameter")
pad18 = body18.newObject("PartDesign::Pad", "Pad017")
pad18.Profile = sketch18
pad18.setExpression("Length", "Params.pad18_length")
body19 = doc.addObject("PartDesign::Body", "Body018")
doc.recompute()

body18.Placement = App.Placement(Vector(0, -2.5, 0), App.Rotation(Vector(0, 0, 1), 0))
boolean8 = body19.newObject("PartDesign::Boolean", "Boolean007")
boolean8.Type = "Fuse"
boolean8.addObjects([body18])
body20 = doc.addObject("PartDesign::Body", "Body019")

# Sketch on XY plane
sketch19 = body20.newObject("Sketcher::SketchObject", "Sketch018")
sketch19.AttachmentSupport = (doc.getObject("XY_Plane019"), [""])
sketch19.MapMode = "FlatFace"
sketch19.AttachmentOffset = App.Placement(Vector(0, 0, 11), App.Rotation())
sketch19.addGeometry(Part.Circle(Vector(0, 26.2, 0), Vector(0, 0, 1), 2), False)
sketch19.addConstraint([
    Sketcher.Constraint("PointOnObject", 0, 3, -2),
    Sketcher.Constraint("Diameter", 0, 4.0),
    Sketcher.Constraint("DistanceY", -1, 1, 0, 3, 26.25),
])
sketch19.setExpression("Constraints[1]", "Params.sketch19_diameter")
pad19 = body20.newObject("PartDesign::Pad", "Pad018")
pad19.Profile = sketch19
pad19.setExpression("Length", "Params.pad19_length")
body21 = doc.addObject("PartDesign::Body", "Body020")

# Sketch on XY plane
sketch20 = body21.newObject("Sketcher::SketchObject", "Sketch019")
sketch20.AttachmentSupport = (doc.getObject("XY_Plane020"), [""])
sketch20.MapMode = "FlatFace"
sketch20.AttachmentOffset = App.Placement(Vector(0, 0, 11), App.Rotation())
sketch20.addGeometry(Part.Circle(Vector(0, 0, 0), Vector(0, 0, 1), 10), False)
sketch20.addConstraint([
    Sketcher.Constraint("Coincident", 0, 3, -1, 1),
    Sketcher.Constraint("Diameter", 0, 20.0),
])
sketch20.setExpression("Constraints[1]", "Params.sketch20_diameter")
pad20 = body21.newObject("PartDesign::Pad", "Pad019")
pad20.Profile = sketch20
pad20.setExpression("Length", "Params.pad20_length")
body22 = doc.addObject("PartDesign::Body", "Body021")

# Sketch on XY plane
sketch21 = body22.newObject("Sketcher::SketchObject", "Sketch020")
sketch21.AttachmentSupport = (doc.getObject("XY_Plane021"), [""])
sketch21.MapMode = "FlatFace"
sketch21.AttachmentOffset = App.Placement(Vector(0, 0, 11), App.Rotation())
sketch21.addGeometry([
    Part.LineSegment(Vector(-22, 0, 0), Vector(-22, -34, 0)),
    Part.LineSegment(Vector(-22, -34, 0), Vector(22, -34, 0)),
    Part.LineSegment(Vector(22, -34, 0), Vector(22, 0, 0)),
    Part.LineSegment(Vector(22, 0, 0), Vector(-22, 0, 0)),
], False)
sketch21.addConstraint([
    Sketcher.Constraint("Coincident", 0, 2, 1, 1),
    Sketcher.Constraint("Coincident", 1, 2, 2, 1),
    Sketcher.Constraint("Coincident", 2, 2, 3, 1),
    Sketcher.Constraint("Coincident", 3, 2, 0, 1),
    Sketcher.Constraint("Vertical", 0),
    Sketcher.Constraint("Horizontal", 1),
    Sketcher.Constraint("Vertical", 2),
    Sketcher.Constraint("Horizontal", 3),
    Sketcher.Constraint("Symmetric", 2, 2, 3, 2, -1, 1),
    Sketcher.Constraint("DistanceX", 1, 1, 1, 2, 44.0),
    Sketcher.Constraint("DistanceY", 0, 2, 0, 1, 34.0),
])
sketch21.setExpression("Constraints[9]", "Params.sketch21_width")
sketch21.setExpression("Constraints[10]", "Params.sketch21_height")
pad21 = body22.newObject("PartDesign::Pad", "Pad020")
pad21.Profile = sketch21
pad21.setExpression("Length", "Params.pad21_length")
body23 = doc.addObject("PartDesign::Body", "Body022")

# Sketch on XY plane
sketch22 = body23.newObject("Sketcher::SketchObject", "Sketch021")
sketch22.AttachmentSupport = (doc.getObject("XY_Plane022"), [""])
sketch22.MapMode = "FlatFace"
sketch22.AttachmentOffset = App.Placement(Vector(0, 0, 11), App.Rotation())
sketch22.addGeometry([
    Part.LineSegment(Vector(-22, 34, 0), Vector(-22, 0, 0)),
    Part.LineSegment(Vector(-22, 0, 0), Vector(22, 0, 0)),
    Part.LineSegment(Vector(22, 0, 0), Vector(22, 34, 0)),
    Part.LineSegment(Vector(22, 34, 0), Vector(-22, 34, 0)),
], False)
sketch22.addConstraint([
    Sketcher.Constraint("Coincident", 0, 2, 1, 1),
    Sketcher.Constraint("Coincident", 1, 2, 2, 1),
    Sketcher.Constraint("Coincident", 2, 2, 3, 1),
    Sketcher.Constraint("Coincident", 3, 2, 0, 1),
    Sketcher.Constraint("Vertical", 0),
    Sketcher.Constraint("Horizontal", 1),
    Sketcher.Constraint("Vertical", 2),
    Sketcher.Constraint("Horizontal", 3),
    Sketcher.Constraint("Symmetric", 0, 2, 1, 2, -1, 1),
    Sketcher.Constraint("DistanceX", 1, 1, 1, 2, 44.0),
    Sketcher.Constraint("DistanceY", 0, 2, 0, 1, 34.0),
])
sketch22.setExpression("Constraints[9]", "Params.sketch22_width")
sketch22.setExpression("Constraints[10]", "Params.sketch22_height")
pad22 = body23.newObject("PartDesign::Pad", "Pad021")
pad22.Profile = sketch22
pad22.setExpression("Length", "Params.pad22_length")
doc.recompute()

boolean9 = body23.newObject("PartDesign::Boolean", "Boolean008")
boolean9.Type = "Fuse"
boolean9.addObjects([body22])
doc.recompute()

boolean10 = body23.newObject("PartDesign::Boolean", "Boolean009")
boolean10.Type = "Cut"
boolean10.addObjects([body21])
doc.recompute()

boolean11 = body23.newObject("PartDesign::Boolean", "Boolean010")
boolean11.Type = "Cut"
boolean11.addObjects([body20])
doc.recompute()

boolean12 = body23.newObject("PartDesign::Boolean", "Boolean011")
boolean12.Type = "Cut"
boolean12.addObjects([body19])

doc.recompute()
